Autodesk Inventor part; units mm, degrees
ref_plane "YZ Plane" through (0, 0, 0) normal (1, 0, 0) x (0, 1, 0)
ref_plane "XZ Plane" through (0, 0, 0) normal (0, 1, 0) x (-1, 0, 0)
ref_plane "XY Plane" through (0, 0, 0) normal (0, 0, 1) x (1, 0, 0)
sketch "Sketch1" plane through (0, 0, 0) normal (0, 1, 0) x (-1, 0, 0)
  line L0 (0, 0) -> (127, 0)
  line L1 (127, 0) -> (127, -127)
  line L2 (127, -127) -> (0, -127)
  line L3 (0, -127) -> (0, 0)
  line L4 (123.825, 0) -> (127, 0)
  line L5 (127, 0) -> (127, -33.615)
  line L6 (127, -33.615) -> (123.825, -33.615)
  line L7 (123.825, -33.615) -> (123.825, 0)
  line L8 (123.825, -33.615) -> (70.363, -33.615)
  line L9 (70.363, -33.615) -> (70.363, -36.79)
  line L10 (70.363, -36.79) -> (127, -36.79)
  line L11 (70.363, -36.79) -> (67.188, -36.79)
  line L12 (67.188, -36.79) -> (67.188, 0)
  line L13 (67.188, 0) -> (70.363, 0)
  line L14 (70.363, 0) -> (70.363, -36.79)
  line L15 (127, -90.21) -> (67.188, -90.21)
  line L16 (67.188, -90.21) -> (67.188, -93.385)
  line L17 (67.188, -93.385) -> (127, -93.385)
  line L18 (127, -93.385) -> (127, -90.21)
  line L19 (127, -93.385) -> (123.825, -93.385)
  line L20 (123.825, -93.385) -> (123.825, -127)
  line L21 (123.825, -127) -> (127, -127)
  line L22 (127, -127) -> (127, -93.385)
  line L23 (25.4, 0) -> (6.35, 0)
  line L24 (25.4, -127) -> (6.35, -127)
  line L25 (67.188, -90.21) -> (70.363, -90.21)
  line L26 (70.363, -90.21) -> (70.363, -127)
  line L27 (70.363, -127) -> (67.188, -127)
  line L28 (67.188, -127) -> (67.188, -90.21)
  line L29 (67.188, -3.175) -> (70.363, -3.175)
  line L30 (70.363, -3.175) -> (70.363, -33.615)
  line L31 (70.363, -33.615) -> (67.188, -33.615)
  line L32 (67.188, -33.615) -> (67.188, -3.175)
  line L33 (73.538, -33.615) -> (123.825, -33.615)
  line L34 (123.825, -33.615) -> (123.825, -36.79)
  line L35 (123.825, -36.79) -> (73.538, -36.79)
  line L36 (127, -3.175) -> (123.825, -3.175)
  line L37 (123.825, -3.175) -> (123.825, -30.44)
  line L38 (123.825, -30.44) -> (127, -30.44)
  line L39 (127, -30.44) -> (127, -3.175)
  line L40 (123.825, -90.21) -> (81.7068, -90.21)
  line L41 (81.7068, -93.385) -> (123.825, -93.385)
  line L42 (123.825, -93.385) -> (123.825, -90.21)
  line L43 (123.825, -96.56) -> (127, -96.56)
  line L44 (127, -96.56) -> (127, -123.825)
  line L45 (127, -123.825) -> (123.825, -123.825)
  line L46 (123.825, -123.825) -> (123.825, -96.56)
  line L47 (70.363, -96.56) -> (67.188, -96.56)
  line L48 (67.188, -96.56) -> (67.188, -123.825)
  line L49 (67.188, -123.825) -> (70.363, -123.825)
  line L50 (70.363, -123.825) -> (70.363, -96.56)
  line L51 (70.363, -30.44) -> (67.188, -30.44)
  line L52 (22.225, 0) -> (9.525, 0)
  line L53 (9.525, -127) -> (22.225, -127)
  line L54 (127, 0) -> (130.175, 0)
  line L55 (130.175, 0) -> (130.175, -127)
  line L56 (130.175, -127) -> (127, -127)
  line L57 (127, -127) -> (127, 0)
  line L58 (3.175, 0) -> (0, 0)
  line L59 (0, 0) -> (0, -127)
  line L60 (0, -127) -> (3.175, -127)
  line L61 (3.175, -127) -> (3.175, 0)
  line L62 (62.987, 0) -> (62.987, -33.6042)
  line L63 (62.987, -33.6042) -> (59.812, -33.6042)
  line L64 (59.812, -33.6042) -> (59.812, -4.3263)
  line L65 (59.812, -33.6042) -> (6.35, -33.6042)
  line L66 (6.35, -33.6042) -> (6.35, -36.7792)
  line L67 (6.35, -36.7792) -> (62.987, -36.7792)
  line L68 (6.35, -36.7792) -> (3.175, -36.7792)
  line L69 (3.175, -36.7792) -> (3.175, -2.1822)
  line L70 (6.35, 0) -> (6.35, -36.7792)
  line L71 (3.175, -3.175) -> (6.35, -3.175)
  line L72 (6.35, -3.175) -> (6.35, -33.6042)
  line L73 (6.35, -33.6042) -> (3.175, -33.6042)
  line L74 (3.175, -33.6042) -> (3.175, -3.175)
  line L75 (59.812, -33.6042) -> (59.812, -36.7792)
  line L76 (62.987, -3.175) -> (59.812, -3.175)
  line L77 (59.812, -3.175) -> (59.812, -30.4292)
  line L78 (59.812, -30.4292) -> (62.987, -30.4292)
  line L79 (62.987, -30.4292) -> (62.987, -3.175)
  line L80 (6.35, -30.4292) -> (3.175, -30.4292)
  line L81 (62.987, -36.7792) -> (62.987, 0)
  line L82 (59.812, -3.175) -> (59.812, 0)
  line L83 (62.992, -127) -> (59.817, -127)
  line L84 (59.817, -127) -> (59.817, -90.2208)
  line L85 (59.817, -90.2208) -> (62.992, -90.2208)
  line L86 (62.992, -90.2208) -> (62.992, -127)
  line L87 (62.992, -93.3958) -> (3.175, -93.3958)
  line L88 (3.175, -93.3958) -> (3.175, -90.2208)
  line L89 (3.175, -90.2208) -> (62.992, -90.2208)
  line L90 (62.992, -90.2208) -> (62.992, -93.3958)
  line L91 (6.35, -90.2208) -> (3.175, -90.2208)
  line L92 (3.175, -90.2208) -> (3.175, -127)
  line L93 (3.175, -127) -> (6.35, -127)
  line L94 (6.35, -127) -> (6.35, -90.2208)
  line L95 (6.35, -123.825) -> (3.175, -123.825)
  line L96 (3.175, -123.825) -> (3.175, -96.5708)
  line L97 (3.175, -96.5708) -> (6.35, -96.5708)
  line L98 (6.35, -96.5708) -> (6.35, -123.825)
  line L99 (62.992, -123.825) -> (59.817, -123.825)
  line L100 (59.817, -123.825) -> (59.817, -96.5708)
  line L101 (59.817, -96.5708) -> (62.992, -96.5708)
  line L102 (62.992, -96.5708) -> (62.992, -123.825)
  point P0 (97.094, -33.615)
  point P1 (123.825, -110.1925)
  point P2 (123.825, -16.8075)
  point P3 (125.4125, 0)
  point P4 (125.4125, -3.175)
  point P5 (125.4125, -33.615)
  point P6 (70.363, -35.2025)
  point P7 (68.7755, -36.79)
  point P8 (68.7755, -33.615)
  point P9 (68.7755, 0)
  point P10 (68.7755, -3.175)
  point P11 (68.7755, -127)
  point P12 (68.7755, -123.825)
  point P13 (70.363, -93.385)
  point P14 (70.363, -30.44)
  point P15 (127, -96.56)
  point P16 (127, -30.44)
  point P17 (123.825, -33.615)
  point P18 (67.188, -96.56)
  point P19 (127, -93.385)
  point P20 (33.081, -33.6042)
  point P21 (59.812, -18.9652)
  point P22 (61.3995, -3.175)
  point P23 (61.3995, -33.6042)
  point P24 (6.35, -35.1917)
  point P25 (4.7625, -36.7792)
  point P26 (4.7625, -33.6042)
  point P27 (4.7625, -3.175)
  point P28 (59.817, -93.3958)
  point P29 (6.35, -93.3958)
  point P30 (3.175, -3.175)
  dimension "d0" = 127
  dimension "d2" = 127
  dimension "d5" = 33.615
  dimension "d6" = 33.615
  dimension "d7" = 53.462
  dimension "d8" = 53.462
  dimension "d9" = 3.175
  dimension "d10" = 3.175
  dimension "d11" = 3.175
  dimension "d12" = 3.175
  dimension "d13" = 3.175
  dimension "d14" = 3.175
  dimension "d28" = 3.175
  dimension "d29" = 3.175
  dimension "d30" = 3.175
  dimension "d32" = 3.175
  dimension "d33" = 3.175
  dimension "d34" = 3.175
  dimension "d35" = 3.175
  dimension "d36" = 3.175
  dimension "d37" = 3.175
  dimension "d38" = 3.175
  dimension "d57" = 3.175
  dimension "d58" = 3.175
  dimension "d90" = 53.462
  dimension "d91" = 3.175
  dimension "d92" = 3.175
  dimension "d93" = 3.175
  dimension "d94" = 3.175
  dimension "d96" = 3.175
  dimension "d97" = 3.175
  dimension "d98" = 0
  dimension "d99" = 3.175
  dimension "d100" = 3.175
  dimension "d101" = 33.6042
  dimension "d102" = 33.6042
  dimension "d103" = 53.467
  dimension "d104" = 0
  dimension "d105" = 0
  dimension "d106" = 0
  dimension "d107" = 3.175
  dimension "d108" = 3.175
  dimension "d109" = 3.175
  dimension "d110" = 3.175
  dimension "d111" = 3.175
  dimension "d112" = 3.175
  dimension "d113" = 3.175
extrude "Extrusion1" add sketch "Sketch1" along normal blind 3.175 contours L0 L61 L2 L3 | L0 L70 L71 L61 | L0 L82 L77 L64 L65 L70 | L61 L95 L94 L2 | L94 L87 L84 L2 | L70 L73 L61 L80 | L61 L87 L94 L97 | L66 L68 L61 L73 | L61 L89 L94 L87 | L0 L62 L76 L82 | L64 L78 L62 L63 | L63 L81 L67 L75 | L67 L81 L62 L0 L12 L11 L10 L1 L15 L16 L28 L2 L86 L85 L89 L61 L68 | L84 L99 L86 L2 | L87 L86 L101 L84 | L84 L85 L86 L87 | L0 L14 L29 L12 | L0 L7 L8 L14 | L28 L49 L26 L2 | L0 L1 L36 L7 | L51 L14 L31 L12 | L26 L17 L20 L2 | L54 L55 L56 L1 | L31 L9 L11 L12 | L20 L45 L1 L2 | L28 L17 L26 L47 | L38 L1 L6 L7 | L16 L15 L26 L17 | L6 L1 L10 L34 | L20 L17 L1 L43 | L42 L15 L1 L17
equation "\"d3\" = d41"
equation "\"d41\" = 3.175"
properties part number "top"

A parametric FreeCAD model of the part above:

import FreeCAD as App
import Part
import Sketcher
from FreeCAD import Vector
Q = App.Units.Quantity


def add_polygon(sketch, points):
    """Adds a closed chain of lines whose ends are joined by coincident constraints."""
    first, n = sketch.GeometryCount, len(points)
    for a, b in zip(points, points[1:] + points[:1]):
        sketch.addGeometry(Part.LineSegment(App.Vector(*a, 0), App.Vector(*b, 0)), False)
    for i in range(n):
        sketch.addConstraint(Sketcher.Constraint("Coincident", first + i, 2, first + (i + 1) % n, 1))

doc = App.newDocument("Part")
body = doc.addObject("PartDesign::Body", "Body")

sketch1 = body.newObject("Sketcher::SketchObject", "Sketch")
sketch1.AttachmentSupport = (doc.getObject("XZ_Plane"), [""])
sketch1.MapMode = "FlatFace"
add_polygon(sketch1, [(0, 0), (0, -127), (-130.2, -127), (-130.2, 0)])
add_polygon(sketch1, [(-3.2, -30.4), (-3.2, -3.2), (-6.3, -3.2), (-6.3, -30.4)])
add_polygon(sketch1, [(-3.2, -123.8), (-3.2, -96.6), (-6.3, -96.6), (-6.3, -123.8)])
add_polygon(sketch1, [(-6.3, -36.8), (-6.3, -33.6), (-59.8, -33.6), (-59.8, -36.8)])
add_polygon(sketch1, [(-63, -3.2), (-63, -30.4), (-59.8, -30.4), (-59.8, -3.2)])
add_polygon(sketch1, [(-67.2, -30.4), (-67.2, -3.2), (-70.4, -3.2), (-70.4, -30.4)])
add_polygon(sketch1, [(-70.4, -36.8), (-70.4, -33.6), (-123.8, -33.6), (-123.8, -36.8)])
add_polygon(sketch1, [(-123.8, -90.2), (-123.8, -93.4), (-70.4, -93.4), (-70.4, -90.2)])
add_polygon(sketch1, [(-67.2, -123.8), (-67.2, -96.6), (-70.4, -96.6), (-70.4, -123.8)])
add_polygon(sketch1, [(-63, -96.6), (-63, -123.8), (-59.8, -123.8), (-59.8, -96.6)])
add_polygon(sketch1, [(-6.3, -90.2), (-59.8, -90.2), (-59.8, -93.4), (-6.3, -93.4)])
add_polygon(sketch1, [(-127, -96.6), (-127, -123.8), (-123.8, -123.8), (-123.8, -96.6)])
add_polygon(sketch1, [(-127, -3.2), (-127, -30.4), (-123.8, -30.4), (-123.8, -3.2)])
sketch1.addConstraint([
    Sketcher.Constraint("Vertical", 0),
    Sketcher.Constraint("Horizontal", 1),
    Sketcher.Constraint("Vertical", 2),
    Sketcher.Constraint("Horizontal", 3),
    Sketcher.Constraint("Vertical", 4),
    Sketcher.Constraint("Horizontal", 5),
    Sketcher.Constraint("Vertical", 6),
    Sketcher.Constraint("Horizontal", 7),
    Sketcher.Constraint("Vertical", 8),
    Sketcher.Constraint("Horizontal", 9),
    Sketcher.Constraint("Vertical", 10),
    Sketcher.Constraint("Horizontal", 11),
    Sketcher.Constraint("Vertical", 12),
    Sketcher.Constraint("Horizontal", 13),
    Sketcher.Constraint("Vertical", 14),
    Sketcher.Constraint("Horizontal", 15),
    Sketcher.Constraint("Vertical", 16),
    Sketcher.Constraint("Horizontal", 17),
    Sketcher.Constraint("Vertical", 18),
    Sketcher.Constraint("Horizontal", 19),
    Sketcher.Constraint("Vertical", 20),
    Sketcher.Constraint("Horizontal", 21),
    Sketcher.Constraint("Vertical", 22),
    Sketcher.Constraint("Horizontal", 23),
    Sketcher.Constraint("Vertical", 24),
    Sketcher.Constraint("Horizontal", 25),
    Sketcher.Constraint("Vertical", 26),
    Sketcher.Constraint("Horizontal", 27),
    Sketcher.Constraint("Vertical", 28),
    Sketcher.Constraint("Horizontal", 29),
    Sketcher.Constraint("Vertical", 30),
    Sketcher.Constraint("Horizontal", 31),
    Sketcher.Constraint("Vertical", 32),
    Sketcher.Constraint("Horizontal", 33),
    Sketcher.Constraint("Vertical", 34),
    Sketcher.Constraint("Horizontal", 35),
    Sketcher.Constraint("Vertical", 36),
    Sketcher.Constraint("Horizontal", 37),
    Sketcher.Constraint("Vertical", 38),
    Sketcher.Constraint("Horizontal", 39),
    Sketcher.Constraint("Horizontal", 40),
    Sketcher.Constraint("Vertical", 41),
    Sketcher.Constraint("Horizontal", 42),
    Sketcher.Constraint("Vertical", 43),
    Sketcher.Constraint("Vertical", 44),
    Sketcher.Constraint("Horizontal", 45),
    Sketcher.Constraint("Vertical", 46),
    Sketcher.Constraint("Horizontal", 47),
    Sketcher.Constraint("Vertical", 48),
    Sketcher.Constraint("Horizontal", 49),
    Sketcher.Constraint("Vertical", 50),
    Sketcher.Constraint("Horizontal", 51),
    Sketcher.Constraint("Coincident", 3, 2, -1, 1),
    Sketcher.Constraint("Horizontal", 7, 2, 16, 2),
    Sketcher.Constraint("Horizontal", 5, 2, 18, 2),
    Sketcher.Constraint("Horizontal", 19, 2, 20, 2),
    Sketcher.Constraint("Horizontal", 11, 2, 34, 2),
    Sketcher.Constraint("Horizontal", 35, 2, 36, 2),
    Sketcher.Constraint("Horizontal", 9, 2, 38, 2),
    Sketcher.Constraint("Horizontal", 37, 2, 44, 2),
    Sketcher.Constraint("Horizontal", 33, 2, 46, 2),
    Sketcher.Constraint("Horizontal", 23, 2, 48, 2),
    Sketcher.Constraint("Horizontal", 21, 2, 50, 2),
    Sketcher.Constraint("Vertical", 7, 2, 8, 2),
    Sketcher.Constraint("Vertical", 6, 2, 9, 2),
    Sketcher.Constraint("Vertical", 10, 2, 12, 2),
    Sketcher.Constraint("Vertical", 14, 2, 17, 2),
    Sketcher.Constraint("Vertical", 22, 2, 24, 2),
    Sketcher.Constraint("Vertical", 26, 2, 28, 2),
    Sketcher.Constraint("Vertical", 27, 2, 29, 2),
    Sketcher.Constraint("Vertical", 23, 2, 32, 2),
    Sketcher.Constraint("Vertical", 30, 2, 33, 2),
    Sketcher.Constraint("Vertical", 38, 2, 40, 2),
    Sketcher.Constraint("Vertical", 15, 2, 42, 2),
    Sketcher.Constraint("Vertical", 31, 2, 45, 2),
    Sketcher.Constraint("Vertical", 47, 2, 48, 2),
    Sketcher.Constraint("Vertical", 46, 2, 49, 2),
    Sketcher.Constraint("Equal", 11, 17),
    Sketcher.Constraint("Equal", 19, 21),
    Sketcher.Constraint("Equal", 15, 25),
    Sketcher.Constraint("Equal", 35, 37),
    Sketcher.Constraint("Equal", 39, 45),
    Sketcher.Constraint("Equal", 6, 8),
    Sketcher.Constraint("Equal", 51, 12),
    Sketcher.Constraint("Equal", 14, 24),
    Sketcher.Constraint("Equal", 26, 28),
    Sketcher.Constraint("Equal", 22, 32),
    Sketcher.Constraint("Equal", 30, 41),
    Sketcher.Constraint("DistanceY", 0, 2, 0, 1, Q("5 in")),
    Sketcher.Constraint("DistanceX", 44, 2, -1, 1, Q("5 in")),
    Sketcher.Constraint("DistanceX", 2, 2, 4, 2, Q("5 in")),
    Sketcher.Constraint("DistanceX", 5, 2, 5, 1, Q("0.125 in")),
    Sketcher.Constraint("DistanceX", 40, 2, 40, 1, Q("2.105 in")),
    Sketcher.Constraint("DistanceX", 13, 2, 13, 1, Q("2.1048 in")),
    Sketcher.Constraint("DistanceX", 4, 2, -1, 1, Q("0.125 in")),
    Sketcher.Constraint("DistanceY", 4, 2, -1, 1, Q("0.125 in")),
    Sketcher.Constraint("DistanceY", 12, 2, -1, 1, Q("1.323 in")),
    Sketcher.Constraint("DistanceY", 0, 2, 10, 2, Q("0.125 in")),
    Sketcher.Constraint("DistanceY", 12, 2, 6, 2, Q("0.125 in")),
    Sketcher.Constraint("DistanceY", 24, 2, 22, 2, Q("0.125 in")),
    Sketcher.Constraint("DistanceY", 32, 2, 29, 2, Q("0.125 in")),
    Sketcher.Constraint("DistanceY", 38, 2, 41, 2, Q("0.125 in")),
    Sketcher.Constraint("DistanceY", 24, 2, -1, 1, 33.615),
])
pad1 = body.newObject("PartDesign::Pad", "Pad")
pad1.Profile = sketch1
pad1.Length = Q("0.125 in")
pad1.Reversed = True

doc.recompute()
